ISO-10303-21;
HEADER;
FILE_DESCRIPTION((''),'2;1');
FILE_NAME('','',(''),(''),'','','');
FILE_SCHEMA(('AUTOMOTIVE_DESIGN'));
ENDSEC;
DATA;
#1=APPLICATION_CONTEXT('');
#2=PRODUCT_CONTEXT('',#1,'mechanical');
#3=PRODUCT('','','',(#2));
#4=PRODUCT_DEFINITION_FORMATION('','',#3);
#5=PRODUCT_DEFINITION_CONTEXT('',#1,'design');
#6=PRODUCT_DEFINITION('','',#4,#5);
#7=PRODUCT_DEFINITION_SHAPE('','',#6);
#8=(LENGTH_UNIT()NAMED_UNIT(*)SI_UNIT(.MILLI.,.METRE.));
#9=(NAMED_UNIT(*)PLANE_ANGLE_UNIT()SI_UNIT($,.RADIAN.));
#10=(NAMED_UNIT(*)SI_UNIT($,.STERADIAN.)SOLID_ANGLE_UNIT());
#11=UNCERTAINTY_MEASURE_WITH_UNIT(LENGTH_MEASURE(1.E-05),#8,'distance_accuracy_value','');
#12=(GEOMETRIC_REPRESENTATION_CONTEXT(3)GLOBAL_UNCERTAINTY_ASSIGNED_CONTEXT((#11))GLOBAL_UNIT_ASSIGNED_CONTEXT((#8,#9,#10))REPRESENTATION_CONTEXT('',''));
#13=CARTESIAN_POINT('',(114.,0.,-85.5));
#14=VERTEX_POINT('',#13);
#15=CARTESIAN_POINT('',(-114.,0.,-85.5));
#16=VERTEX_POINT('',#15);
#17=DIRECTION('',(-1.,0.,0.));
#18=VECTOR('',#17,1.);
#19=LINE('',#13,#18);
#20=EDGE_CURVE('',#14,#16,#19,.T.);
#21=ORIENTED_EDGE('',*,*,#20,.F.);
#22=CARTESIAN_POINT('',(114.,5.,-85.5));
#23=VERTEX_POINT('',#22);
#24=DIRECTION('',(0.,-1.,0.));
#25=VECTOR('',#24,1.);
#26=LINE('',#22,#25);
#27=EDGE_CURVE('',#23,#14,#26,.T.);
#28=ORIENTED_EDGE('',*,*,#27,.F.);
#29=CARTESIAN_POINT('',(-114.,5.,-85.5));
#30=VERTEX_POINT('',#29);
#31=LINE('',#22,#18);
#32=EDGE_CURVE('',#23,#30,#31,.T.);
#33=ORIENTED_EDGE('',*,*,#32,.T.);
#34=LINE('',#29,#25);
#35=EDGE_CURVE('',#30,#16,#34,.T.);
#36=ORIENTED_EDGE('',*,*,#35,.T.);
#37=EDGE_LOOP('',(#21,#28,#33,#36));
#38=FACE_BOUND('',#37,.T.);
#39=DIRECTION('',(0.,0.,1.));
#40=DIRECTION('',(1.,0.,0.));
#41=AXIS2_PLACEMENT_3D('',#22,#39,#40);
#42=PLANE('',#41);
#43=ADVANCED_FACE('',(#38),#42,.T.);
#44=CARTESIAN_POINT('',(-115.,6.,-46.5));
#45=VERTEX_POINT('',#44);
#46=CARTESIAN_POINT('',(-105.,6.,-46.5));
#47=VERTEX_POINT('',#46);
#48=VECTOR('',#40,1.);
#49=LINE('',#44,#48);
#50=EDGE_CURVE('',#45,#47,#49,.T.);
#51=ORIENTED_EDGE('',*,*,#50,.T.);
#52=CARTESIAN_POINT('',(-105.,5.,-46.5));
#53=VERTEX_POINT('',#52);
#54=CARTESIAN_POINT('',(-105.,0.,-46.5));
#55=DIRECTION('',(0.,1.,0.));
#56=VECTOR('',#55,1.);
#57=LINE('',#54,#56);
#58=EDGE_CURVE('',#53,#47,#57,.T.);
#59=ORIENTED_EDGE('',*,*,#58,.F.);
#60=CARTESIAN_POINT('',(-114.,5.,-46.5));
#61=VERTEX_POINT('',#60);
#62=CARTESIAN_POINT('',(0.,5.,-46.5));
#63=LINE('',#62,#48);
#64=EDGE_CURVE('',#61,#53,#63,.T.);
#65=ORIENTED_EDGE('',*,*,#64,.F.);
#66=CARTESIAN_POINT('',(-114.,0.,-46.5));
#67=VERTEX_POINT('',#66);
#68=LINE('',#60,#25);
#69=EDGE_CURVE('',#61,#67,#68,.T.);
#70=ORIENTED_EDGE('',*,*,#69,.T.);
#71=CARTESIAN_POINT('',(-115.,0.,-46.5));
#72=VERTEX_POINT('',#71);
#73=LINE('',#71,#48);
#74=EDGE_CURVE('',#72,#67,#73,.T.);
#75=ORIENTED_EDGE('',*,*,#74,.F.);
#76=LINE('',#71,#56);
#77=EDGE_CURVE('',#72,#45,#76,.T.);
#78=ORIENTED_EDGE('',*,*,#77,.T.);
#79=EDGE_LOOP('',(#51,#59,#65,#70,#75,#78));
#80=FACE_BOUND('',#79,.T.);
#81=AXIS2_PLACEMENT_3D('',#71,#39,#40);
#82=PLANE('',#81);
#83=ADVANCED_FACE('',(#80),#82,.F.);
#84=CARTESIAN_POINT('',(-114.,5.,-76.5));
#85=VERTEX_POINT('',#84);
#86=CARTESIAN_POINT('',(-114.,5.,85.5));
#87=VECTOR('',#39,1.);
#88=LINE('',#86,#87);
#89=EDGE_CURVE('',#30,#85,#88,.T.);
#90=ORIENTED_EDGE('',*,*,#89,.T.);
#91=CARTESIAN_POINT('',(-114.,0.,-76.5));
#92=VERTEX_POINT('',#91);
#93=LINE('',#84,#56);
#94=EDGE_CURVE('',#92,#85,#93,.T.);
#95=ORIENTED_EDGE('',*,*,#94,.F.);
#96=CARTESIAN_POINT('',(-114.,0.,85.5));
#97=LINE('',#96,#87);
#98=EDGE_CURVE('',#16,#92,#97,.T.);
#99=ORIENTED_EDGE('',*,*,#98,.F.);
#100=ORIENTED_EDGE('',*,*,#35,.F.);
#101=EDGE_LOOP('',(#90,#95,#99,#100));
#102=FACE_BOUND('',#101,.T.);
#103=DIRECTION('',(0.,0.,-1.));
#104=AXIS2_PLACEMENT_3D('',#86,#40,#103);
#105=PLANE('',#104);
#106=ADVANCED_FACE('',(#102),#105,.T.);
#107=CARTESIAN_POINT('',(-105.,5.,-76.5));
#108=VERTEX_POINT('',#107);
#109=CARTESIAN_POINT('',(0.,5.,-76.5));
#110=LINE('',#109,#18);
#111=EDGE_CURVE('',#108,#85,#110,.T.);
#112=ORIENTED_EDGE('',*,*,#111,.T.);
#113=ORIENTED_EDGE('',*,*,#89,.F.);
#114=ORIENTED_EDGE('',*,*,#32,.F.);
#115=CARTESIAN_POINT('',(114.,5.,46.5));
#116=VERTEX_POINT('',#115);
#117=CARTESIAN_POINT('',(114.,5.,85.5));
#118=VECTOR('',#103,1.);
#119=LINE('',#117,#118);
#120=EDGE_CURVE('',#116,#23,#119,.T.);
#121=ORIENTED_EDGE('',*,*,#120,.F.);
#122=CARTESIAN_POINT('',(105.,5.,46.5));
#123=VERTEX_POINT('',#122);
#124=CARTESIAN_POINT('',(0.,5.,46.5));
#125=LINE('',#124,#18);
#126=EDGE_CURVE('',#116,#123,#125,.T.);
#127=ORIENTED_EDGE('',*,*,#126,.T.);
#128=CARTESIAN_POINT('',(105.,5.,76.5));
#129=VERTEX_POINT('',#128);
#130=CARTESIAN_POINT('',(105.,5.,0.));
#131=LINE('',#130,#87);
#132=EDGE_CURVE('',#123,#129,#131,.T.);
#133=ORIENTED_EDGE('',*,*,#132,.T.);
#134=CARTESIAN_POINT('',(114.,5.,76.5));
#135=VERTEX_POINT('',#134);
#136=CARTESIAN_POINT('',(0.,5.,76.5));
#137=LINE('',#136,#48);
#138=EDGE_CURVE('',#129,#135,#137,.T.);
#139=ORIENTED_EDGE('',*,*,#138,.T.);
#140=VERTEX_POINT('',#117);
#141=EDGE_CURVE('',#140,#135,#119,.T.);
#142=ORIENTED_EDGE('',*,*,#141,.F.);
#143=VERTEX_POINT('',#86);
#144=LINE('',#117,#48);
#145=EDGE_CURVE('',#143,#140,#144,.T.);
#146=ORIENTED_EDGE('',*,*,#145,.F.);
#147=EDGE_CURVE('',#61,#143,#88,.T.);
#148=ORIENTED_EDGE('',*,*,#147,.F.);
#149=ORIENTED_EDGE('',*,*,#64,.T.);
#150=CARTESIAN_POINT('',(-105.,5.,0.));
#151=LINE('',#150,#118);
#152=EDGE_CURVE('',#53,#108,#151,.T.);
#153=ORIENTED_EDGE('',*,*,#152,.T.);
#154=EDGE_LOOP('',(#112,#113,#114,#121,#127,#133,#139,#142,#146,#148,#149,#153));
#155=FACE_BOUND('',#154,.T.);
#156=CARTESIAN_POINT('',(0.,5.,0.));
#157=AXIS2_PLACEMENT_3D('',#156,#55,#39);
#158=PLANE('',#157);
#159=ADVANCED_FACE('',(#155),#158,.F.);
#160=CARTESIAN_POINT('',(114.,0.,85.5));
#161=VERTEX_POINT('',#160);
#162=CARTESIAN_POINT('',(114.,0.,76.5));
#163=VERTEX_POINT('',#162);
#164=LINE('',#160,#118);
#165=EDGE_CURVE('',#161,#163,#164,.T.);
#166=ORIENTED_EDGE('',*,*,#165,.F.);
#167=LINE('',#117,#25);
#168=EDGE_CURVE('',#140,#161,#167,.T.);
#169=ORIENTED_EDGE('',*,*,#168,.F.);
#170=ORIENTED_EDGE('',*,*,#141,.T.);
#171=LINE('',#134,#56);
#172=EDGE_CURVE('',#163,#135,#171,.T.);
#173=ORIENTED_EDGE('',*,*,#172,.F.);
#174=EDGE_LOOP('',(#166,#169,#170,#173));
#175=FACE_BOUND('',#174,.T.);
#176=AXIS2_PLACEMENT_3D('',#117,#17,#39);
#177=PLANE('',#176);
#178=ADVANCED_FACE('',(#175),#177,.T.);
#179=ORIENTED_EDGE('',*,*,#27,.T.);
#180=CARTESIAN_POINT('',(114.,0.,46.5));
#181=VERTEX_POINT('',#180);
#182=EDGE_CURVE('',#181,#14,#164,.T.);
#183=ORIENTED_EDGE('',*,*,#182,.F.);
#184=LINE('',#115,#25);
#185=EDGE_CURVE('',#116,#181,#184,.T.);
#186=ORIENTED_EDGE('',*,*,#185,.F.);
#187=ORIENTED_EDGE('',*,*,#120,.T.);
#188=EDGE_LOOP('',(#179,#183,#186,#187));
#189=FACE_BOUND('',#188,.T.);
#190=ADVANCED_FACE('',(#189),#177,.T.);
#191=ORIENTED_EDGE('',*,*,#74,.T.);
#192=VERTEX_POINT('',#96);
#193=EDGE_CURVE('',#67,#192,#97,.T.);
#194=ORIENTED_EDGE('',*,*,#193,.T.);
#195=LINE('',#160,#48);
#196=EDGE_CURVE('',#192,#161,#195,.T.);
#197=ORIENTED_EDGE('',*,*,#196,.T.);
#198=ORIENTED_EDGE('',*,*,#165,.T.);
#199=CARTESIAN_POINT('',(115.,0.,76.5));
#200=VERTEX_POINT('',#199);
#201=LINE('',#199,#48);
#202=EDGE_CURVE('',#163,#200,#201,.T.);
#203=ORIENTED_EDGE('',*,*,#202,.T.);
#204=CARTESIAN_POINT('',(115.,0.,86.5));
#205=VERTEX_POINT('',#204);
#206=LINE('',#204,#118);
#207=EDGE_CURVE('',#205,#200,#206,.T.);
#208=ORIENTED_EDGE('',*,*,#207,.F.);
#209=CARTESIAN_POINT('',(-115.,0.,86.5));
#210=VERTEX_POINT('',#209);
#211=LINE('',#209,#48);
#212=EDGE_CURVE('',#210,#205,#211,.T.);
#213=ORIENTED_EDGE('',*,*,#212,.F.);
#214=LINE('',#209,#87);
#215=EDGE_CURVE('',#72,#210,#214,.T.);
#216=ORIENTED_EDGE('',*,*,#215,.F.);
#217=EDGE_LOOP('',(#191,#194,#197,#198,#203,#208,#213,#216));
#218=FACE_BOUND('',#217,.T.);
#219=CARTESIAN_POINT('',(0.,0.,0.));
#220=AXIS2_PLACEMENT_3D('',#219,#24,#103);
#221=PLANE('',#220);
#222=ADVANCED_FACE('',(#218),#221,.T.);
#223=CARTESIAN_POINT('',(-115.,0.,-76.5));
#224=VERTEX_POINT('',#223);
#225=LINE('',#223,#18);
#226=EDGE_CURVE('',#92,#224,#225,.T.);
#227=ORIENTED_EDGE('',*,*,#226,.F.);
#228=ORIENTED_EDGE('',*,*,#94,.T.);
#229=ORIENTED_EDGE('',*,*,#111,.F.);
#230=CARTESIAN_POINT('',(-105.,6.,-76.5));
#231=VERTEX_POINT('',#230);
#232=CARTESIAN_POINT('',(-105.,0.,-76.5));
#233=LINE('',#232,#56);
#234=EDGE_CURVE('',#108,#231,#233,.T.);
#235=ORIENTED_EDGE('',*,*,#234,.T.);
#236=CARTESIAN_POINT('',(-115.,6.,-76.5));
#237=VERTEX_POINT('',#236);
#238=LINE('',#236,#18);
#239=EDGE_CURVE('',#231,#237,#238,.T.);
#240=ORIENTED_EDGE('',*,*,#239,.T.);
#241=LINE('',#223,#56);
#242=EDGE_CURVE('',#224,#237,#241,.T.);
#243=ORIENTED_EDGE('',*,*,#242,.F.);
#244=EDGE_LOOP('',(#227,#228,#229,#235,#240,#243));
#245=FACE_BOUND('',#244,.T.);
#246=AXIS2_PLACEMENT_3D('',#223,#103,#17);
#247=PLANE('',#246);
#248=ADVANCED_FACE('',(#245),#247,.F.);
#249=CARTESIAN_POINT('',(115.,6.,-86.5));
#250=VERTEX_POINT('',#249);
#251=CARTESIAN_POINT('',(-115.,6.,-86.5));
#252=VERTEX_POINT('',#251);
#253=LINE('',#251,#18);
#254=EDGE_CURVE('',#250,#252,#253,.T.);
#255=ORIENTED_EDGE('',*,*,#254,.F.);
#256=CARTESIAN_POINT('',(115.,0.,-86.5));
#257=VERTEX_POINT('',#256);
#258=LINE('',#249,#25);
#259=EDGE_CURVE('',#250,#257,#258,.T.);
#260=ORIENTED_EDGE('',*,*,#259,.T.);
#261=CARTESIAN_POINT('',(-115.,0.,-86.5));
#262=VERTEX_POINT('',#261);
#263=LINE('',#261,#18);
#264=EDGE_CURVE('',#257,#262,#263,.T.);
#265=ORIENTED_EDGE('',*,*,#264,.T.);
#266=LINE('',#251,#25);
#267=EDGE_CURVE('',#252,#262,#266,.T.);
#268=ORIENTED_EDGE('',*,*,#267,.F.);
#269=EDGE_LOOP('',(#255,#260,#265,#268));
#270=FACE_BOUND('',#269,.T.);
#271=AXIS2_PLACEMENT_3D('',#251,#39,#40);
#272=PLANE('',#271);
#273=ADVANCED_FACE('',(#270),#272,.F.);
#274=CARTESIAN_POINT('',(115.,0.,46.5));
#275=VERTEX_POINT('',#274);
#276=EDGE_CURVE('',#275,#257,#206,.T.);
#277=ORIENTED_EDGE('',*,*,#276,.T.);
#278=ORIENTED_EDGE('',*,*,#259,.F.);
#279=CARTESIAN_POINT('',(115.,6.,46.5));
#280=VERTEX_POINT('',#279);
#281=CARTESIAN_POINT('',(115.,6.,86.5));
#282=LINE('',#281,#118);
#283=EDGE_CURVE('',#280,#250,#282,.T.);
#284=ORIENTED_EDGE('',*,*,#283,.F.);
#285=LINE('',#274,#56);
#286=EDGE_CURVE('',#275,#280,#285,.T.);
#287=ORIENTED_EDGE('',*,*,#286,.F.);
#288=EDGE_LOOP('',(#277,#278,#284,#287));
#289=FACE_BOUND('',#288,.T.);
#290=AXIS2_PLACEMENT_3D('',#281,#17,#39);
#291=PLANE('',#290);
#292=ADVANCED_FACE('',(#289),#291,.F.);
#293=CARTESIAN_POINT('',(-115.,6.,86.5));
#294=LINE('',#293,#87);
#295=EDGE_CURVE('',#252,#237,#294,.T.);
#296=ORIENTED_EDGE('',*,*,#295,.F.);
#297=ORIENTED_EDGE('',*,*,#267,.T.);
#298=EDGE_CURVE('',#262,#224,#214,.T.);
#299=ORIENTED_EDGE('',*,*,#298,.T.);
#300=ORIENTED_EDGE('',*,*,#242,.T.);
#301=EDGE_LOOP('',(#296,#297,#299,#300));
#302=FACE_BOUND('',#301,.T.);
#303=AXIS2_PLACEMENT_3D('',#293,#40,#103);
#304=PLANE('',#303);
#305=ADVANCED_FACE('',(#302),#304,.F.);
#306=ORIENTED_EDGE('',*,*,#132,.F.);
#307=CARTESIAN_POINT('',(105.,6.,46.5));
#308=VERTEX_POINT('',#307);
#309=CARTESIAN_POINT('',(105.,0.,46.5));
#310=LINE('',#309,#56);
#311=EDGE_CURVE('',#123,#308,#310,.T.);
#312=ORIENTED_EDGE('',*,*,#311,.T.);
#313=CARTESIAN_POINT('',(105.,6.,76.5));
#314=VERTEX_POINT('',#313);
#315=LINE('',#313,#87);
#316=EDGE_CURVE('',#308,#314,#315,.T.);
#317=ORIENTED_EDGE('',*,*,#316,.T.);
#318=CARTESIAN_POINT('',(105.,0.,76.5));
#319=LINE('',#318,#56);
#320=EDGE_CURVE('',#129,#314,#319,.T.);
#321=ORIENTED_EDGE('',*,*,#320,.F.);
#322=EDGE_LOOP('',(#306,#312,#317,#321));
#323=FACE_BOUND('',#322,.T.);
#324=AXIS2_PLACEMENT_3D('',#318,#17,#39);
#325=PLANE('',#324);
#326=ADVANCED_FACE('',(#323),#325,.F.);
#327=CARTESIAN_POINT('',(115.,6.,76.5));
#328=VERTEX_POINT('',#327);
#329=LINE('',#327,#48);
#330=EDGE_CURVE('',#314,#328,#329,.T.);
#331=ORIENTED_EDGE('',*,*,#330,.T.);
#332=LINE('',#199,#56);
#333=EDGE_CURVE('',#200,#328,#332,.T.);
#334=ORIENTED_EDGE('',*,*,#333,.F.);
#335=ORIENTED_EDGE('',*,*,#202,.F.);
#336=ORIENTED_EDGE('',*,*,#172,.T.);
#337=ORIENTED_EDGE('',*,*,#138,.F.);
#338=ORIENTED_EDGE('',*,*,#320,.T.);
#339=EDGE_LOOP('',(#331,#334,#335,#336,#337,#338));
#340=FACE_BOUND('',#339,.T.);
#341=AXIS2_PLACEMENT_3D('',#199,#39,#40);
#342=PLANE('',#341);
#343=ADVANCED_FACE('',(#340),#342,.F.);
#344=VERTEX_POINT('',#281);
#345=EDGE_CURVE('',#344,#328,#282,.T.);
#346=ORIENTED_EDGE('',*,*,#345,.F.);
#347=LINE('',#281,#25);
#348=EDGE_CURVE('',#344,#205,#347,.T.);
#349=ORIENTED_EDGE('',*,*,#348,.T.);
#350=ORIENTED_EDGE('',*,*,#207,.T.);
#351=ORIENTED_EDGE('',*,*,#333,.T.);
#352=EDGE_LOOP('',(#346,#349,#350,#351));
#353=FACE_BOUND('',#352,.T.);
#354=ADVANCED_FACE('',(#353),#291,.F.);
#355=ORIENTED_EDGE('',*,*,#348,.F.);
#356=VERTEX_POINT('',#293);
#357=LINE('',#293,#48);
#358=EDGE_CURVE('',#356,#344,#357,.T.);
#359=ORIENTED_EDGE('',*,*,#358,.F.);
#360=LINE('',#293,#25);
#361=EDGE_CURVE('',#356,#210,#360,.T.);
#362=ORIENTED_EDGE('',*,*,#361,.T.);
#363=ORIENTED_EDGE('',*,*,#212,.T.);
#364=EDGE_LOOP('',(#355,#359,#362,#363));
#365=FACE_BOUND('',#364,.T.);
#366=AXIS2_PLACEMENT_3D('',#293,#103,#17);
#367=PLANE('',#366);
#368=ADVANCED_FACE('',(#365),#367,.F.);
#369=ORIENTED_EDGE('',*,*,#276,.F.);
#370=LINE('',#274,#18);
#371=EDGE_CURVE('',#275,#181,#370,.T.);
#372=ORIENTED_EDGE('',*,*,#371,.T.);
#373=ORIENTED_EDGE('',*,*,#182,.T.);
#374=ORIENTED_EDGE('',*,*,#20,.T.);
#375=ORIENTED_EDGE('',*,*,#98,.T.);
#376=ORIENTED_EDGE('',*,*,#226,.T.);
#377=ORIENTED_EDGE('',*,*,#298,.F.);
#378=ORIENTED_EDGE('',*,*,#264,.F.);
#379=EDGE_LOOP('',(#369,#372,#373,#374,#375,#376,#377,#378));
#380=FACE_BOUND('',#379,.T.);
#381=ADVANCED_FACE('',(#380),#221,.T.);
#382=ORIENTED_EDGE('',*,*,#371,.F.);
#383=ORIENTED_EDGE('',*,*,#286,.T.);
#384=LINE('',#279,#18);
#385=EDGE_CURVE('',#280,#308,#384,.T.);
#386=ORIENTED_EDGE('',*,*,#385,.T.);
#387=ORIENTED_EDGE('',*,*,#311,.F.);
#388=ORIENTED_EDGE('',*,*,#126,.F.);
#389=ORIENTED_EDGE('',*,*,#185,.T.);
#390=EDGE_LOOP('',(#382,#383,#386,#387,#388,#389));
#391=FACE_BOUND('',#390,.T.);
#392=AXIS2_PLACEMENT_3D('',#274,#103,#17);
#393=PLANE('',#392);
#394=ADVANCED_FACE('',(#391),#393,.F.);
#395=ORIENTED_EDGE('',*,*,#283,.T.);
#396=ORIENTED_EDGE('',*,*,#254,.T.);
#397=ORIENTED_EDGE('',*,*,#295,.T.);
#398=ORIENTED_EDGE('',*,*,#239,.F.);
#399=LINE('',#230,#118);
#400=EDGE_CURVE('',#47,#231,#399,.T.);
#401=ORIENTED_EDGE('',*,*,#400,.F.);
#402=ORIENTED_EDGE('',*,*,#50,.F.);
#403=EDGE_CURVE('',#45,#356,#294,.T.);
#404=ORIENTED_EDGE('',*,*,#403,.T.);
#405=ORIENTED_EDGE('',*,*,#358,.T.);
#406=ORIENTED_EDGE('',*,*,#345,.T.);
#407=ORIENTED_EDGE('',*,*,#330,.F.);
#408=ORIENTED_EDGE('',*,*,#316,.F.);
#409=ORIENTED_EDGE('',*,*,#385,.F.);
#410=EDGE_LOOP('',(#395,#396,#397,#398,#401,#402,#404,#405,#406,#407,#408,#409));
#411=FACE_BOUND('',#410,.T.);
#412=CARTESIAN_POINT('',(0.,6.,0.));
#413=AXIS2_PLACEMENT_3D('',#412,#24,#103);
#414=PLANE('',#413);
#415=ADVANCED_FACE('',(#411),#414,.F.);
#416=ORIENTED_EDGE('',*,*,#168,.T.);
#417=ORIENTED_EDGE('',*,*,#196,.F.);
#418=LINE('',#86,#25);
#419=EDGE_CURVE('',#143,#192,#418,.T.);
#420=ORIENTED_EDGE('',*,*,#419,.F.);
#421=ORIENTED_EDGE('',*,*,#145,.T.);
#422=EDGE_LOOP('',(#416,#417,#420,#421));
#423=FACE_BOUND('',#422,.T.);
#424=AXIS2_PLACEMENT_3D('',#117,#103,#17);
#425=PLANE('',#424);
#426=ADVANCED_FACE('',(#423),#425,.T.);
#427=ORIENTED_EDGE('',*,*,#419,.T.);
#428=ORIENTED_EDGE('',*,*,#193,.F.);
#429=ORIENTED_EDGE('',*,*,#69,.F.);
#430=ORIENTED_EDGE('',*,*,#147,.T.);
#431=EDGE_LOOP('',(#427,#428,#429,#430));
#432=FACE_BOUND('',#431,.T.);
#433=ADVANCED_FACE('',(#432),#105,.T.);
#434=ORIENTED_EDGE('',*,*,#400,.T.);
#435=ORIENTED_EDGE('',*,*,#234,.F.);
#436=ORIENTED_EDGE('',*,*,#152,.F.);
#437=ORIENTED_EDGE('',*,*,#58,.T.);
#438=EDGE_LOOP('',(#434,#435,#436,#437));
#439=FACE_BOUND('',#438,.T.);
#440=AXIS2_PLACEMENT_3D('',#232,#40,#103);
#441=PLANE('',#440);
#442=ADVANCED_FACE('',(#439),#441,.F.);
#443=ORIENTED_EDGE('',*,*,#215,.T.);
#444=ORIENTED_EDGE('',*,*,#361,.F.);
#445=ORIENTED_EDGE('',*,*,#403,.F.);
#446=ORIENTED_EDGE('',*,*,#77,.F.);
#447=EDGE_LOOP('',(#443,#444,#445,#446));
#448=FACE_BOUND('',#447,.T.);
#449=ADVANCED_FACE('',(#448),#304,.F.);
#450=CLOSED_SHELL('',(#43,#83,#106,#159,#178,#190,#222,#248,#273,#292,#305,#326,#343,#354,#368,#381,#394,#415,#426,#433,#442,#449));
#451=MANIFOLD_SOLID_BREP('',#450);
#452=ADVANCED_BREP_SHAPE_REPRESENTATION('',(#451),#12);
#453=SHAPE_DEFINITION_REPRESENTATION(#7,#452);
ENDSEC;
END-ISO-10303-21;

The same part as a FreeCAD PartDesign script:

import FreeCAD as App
import Part
import Sketcher

V = App.Vector
Q = App.Units.Quantity


def add_polygon(sketch, points):
    """Adds a closed chain of lines whose ends are joined by coincident constraints."""
    first, n = sketch.GeometryCount, len(points)
    for a, b in zip(points, points[1:] + points[:1]):
        sketch.addGeometry(Part.LineSegment(App.Vector(*a, 0), App.Vector(*b, 0)), False)
    for i in range(n):
        sketch.addConstraint(Sketcher.Constraint("Coincident", first + i, 2, first + (i + 1) % n, 1))

doc = App.newDocument("Part")
params = doc.addObject("Spreadsheet::Sheet", "Params")
for row, (alias, value) in enumerate([
    ("sketch1_width", "230 mm"),
    ("sketch1_height", "173 mm"),
    ("pad1_length", "6 mm"),
    ("sketch2_width", "228 mm"),
    ("sketch2_height", "171 mm"),
    ("pocket1_length", "5 mm"),
    ("sketch3_width", "10 mm"),
    ("sketch3_height", "30 mm"),
], start=1):
    params.set(f"A{row}", alias)
    params.set(f"B{row}", "=" + value)
    params.setAlias(f"B{row}", alias)

body = doc.addObject("PartDesign::Body", "Body")

# Sketch on XZ plane
sketch1 = doc.addObject("Sketcher::SketchObject", "Sketch")
body.addObject(sketch1)
sketch1.AttachmentSupport = (doc.XZ_Plane, [""])
sketch1.MapMode = "FlatFace"
add_polygon(sketch1, [(-115, -86), (-115, 86), (115, 86), (115, -86)])  # lines 0-3
sketch1.addConstraint(Sketcher.Constraint("Vertical", 0))
sketch1.addConstraint(Sketcher.Constraint("Horizontal", 1))
sketch1.addConstraint(Sketcher.Constraint("Vertical", 2))
sketch1.addConstraint(Sketcher.Constraint("Horizontal", 3))
sketch1.addConstraint(Sketcher.Constraint("Symmetric", 0, 2, 2, 2, -1, 1))
sketch1.addConstraint(Sketcher.Constraint("DistanceX", 1, 1, 1, 2, Q("230 mm")))
sketch1.addConstraint(Sketcher.Constraint("DistanceY", 0, 1, 0, 2, Q("173 mm")))
sketch1.setExpression("Constraints[9]", "Params.sketch1_width")
sketch1.setExpression("Constraints[10]", "Params.sketch1_height")
pad1 = doc.addObject("PartDesign::Pad", "Pad")
body.addObject(pad1)
pad1.Profile = sketch1
pad1.setExpression("Length", "Params.pad1_length")
pad1.Reversed = True

# Sketch on XZ plane
sketch2 = doc.addObject("Sketcher::SketchObject", "Sketch001")
body.addObject(sketch2)
sketch2.AttachmentSupport = (doc.XZ_Plane, [""])
sketch2.MapMode = "FlatFace"
add_polygon(sketch2, [(-114, -86), (-114, 86), (114, 86), (114, -86)])  # lines 0-3
sketch2.addConstraint(Sketcher.Constraint("Vertical", 0))
sketch2.addConstraint(Sketcher.Constraint("Horizontal", 1))
sketch2.addConstraint(Sketcher.Constraint("Vertical", 2))
sketch2.addConstraint(Sketcher.Constraint("Horizontal", 3))
sketch2.addConstraint(Sketcher.Constraint("Symmetric", 0, 2, 2, 2, -1, 1))
sketch2.addConstraint(Sketcher.Constraint("DistanceX", 1, 1, 1, 2, Q("228 mm")))
sketch2.addConstraint(Sketcher.Constraint("DistanceY", 0, 1, 0, 2, Q("171 mm")))
sketch2.setExpression("Constraints[9]", "Params.sketch2_width")
sketch2.setExpression("Constraints[10]", "Params.sketch2_height")
pocket1 = doc.addObject("PartDesign::Pocket", "Pocket")
body.addObject(pocket1)
pocket1.Profile = sketch2
pocket1.setExpression("Length", "Params.pocket1_length")

# Sketch on XZ plane
sketch3 = doc.addObject("Sketcher::SketchObject", "Sketch002")
body.addObject(sketch3)
sketch3.AttachmentSupport = (doc.XZ_Plane, [""])
sketch3.MapMode = "FlatFace"
sketch3.AttachmentOffset = App.Placement(V(0, 0, -6), App.Rotation())
add_polygon(sketch3, [(105, 46), (105, 76), (115, 76), (115, 46)])  # lines 0-3
add_polygon(sketch3, [(-115, -76), (-115, -46), (-105, -46), (-105, -76)])  # lines 4-7
sketch3.addConstraint(Sketcher.Constraint("Vertical", 0))
sketch3.addConstraint(Sketcher.Constraint("Horizontal", 1))
sketch3.addConstraint(Sketcher.Constraint("Vertical", 2))
sketch3.addConstraint(Sketcher.Constraint("Horizontal", 3))
sketch3.addConstraint(Sketcher.Constraint("Vertical", 4))
sketch3.addConstraint(Sketcher.Constraint("Horizontal", 5))
sketch3.addConstraint(Sketcher.Constraint("Vertical", 6))
sketch3.addConstraint(Sketcher.Constraint("Horizontal", 7))
sketch3.addConstraint(Sketcher.Constraint("Symmetric", 2, 2, 4, 2, -1, 1))
sketch3.addConstraint(Sketcher.Constraint("Symmetric", 0, 2, 6, 2, -1, 1))
sketch3.addConstraint(Sketcher.Constraint("DistanceX", 1, 1, 1, 2, Q("10 mm")))
sketch3.addConstraint(Sketcher.Constraint("DistanceY", 0, 1, 0, 2, Q("30 mm")))
sketch3.addConstraint(Sketcher.Constraint("DistanceX", -1, 1, 0, 2, Q("105 mm")))
sketch3.addConstraint(Sketcher.Constraint("DistanceY", 4, 2, 3, 2, Q("93 mm")))
sketch3.setExpression("Constraints[18]", "Params.sketch3_width")
sketch3.setExpression("Constraints[19]", "Params.sketch3_height")
pocket2 = doc.addObject("PartDesign::Pocket", "Pocket001")
body.addObject(pocket2)
pocket2.Profile = sketch3
pocket2.Type = "ThroughAll"
pocket2.Reversed = True

doc.recompute()
